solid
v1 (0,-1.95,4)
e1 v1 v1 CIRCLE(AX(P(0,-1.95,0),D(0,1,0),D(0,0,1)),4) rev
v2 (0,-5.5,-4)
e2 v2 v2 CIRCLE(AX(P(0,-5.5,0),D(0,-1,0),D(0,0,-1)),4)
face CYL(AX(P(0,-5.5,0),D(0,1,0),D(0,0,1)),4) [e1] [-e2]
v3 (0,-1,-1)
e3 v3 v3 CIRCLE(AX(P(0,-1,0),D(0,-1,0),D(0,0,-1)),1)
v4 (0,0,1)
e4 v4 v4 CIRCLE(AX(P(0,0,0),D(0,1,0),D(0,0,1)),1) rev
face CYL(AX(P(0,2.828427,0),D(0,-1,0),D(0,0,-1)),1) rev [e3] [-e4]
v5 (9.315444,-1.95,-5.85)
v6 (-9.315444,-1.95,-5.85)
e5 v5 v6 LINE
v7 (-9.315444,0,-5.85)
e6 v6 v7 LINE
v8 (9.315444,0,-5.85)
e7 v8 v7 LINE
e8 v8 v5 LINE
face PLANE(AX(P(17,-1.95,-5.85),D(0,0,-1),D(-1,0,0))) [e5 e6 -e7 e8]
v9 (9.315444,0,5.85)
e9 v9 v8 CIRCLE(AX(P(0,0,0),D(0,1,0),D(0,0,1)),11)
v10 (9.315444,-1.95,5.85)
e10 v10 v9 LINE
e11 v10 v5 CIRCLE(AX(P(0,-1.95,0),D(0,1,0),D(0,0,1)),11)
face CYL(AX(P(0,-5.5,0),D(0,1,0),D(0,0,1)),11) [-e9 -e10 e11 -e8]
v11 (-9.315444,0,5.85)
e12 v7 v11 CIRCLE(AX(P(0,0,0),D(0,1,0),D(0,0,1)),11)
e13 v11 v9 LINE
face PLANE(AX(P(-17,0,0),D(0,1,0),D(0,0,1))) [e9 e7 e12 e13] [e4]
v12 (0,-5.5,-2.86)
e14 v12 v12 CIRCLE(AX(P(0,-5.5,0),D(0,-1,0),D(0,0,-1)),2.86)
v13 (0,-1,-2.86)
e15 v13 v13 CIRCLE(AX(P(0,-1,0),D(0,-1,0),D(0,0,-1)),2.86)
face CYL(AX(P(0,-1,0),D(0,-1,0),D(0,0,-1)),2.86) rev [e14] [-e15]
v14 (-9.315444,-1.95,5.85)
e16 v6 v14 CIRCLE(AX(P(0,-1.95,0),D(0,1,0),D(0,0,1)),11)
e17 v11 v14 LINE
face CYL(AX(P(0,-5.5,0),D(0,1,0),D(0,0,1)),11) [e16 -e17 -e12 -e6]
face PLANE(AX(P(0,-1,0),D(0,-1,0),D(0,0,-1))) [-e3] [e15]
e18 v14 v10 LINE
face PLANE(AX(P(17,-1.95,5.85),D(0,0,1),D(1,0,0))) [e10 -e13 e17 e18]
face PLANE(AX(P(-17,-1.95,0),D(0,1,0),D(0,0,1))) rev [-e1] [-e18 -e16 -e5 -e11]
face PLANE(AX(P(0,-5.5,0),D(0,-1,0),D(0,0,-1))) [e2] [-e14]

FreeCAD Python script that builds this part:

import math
import FreeCAD as App
import Part
import Sketcher
from FreeCAD import Vector

doc = App.newDocument("Part")
body = doc.addObject("PartDesign::Body", "Body")

# Sketch on XZ plane
sketch1 = doc.addObject("Sketcher::SketchObject", "Sketch")
body.addObject(sketch1)
sketch1.AttachmentSupport = (doc.XZ_Plane, [""])
sketch1.MapMode = "FlatFace"
sketch1.addGeometry([
    Part.LineSegment(Vector(17, -5.85, 0), Vector(-17, -5.85, 0)),  # 0
    Part.ArcOfCircle(Part.Circle(Vector(-17, 0, 0), Vector(0, 0, 1), 5.85), math.radians(180), math.radians(270)),  # 1
    Part.ArcOfCircle(Part.Circle(Vector(-17, 0, 0), Vector(0, 0, 1), 5.85), math.radians(90), math.radians(180)),  # 2
    Part.LineSegment(Vector(-17, 5.85, 0), Vector(17, 5.85, 0)),  # 3
    Part.ArcOfCircle(Part.Circle(Vector(17, 0, 0), Vector(0, 0, 1), 5.85), math.radians(0), math.radians(90)),  # 4
    Part.ArcOfCircle(Part.Circle(Vector(17, 0, 0), Vector(0, 0, 1), 5.85), math.radians(-90), math.radians(0)),  # 5
], False)
sketch1.addConstraint([
    Sketcher.Constraint("Tangent", 0, 2, 1, 2),
    Sketcher.Constraint("Tangent", 1, 1, 2, 2),
    Sketcher.Constraint("Tangent", 2, 1, 3, 1),
    Sketcher.Constraint("Tangent", 3, 2, 4, 2),
    Sketcher.Constraint("Tangent", 4, 1, 5, 2),
    Sketcher.Constraint("Tangent", 5, 1, 0, 1),
    Sketcher.Constraint("Horizontal", 0),
    Sketcher.Constraint("Horizontal", 3),
    Sketcher.Constraint("Equal", 1, 2),
    Sketcher.Constraint("Equal", 2, 4),
    Sketcher.Constraint("Symmetric", 1, 3, 4, 3, -1, 1),
    Sketcher.Constraint("PointOnObject", 1, 1, -1),
    Sketcher.Constraint("PointOnObject", 4, 1, -1),
    Sketcher.Constraint("DistanceX", 0, 2, 0, 1, 34.0),
    Sketcher.Constraint("Radius", 1, 5.85),
])
pad1 = doc.addObject("PartDesign::Pad", "Pad")
body.addObject(pad1)
pad1.Profile = sketch1
pad1.Length = 1.95

# Sketch on XZ plane
sketch2 = doc.addObject("Sketcher::SketchObject", "Sketch001")
body.addObject(sketch2)
sketch2.AttachmentSupport = (doc.XZ_Plane, [""])
sketch2.MapMode = "FlatFace"
sketch2.AttachmentOffset = App.Placement(Vector(0, 0, 1.95), App.Rotation())
sketch2.addGeometry(Part.Circle(Vector(0, 0, 0), Vector(0, 0, 1), 4), False)
sketch2.addConstraint([
    Sketcher.Constraint("Coincident", 0, 3, -1, 1),
    Sketcher.Constraint("Diameter", 0, 8.0),
])
pad2 = doc.addObject("PartDesign::Pad", "Pad001")
body.addObject(pad2)
pad2.Profile = sketch2
pad2.Length = 3.55

# Sketch on XZ plane
sketch3 = doc.addObject("Sketcher::SketchObject", "Sketch002")
body.addObject(sketch3)
sketch3.AttachmentSupport = (doc.XZ_Plane, [""])
sketch3.MapMode = "FlatFace"
sketch3.AttachmentOffset = App.Placement(Vector(0, 0, 5.5), App.Rotation())
sketch3.addGeometry(Part.Circle(Vector(0, 0, 0), Vector(0, 0, 1), 2.86), False)
sketch3.addConstraint([
    Sketcher.Constraint("Coincident", 0, 3, -1, 1),
    Sketcher.Constraint("Diameter", 0, 5.72),
])
pocket1 = doc.addObject("PartDesign::Pocket", "Pocket")
body.addObject(pocket1)
pocket1.Profile = sketch3
pocket1.Length = 4.5

# Sketch on XZ plane
sketch4 = doc.addObject("Sketcher::SketchObject", "Sketch003")
body.addObject(sketch4)
sketch4.AttachmentSupport = (doc.XZ_Plane, [""])
sketch4.MapMode = "FlatFace"
sketch4.AttachmentOffset = App.Placement(Vector(0, 0, 1), App.Rotation())
sketch4.addGeometry(Part.Circle(Vector(0, 0, 0), Vector(0, 0, 1), 1), False)
sketch4.addConstraint([
    Sketcher.Constraint("Coincident", 0, 3, -1, 1),
    Sketcher.Constraint("Diameter", 0, 2.0),
])
pocket2 = doc.addObject("PartDesign::Pocket", "Pocket001")
body.addObject(pocket2)
pocket2.Profile = sketch4
pocket2.Length = 1

# Sketch on XZ plane
sketch5 = doc.addObject("Sketcher::SketchObject", "Sketch004")
body.addObject(sketch5)
sketch5.AttachmentSupport = (doc.XZ_Plane, [""])
sketch5.MapMode = "FlatFace"
sketch5.addGeometry([
    Part.LineSegment(Vector(-28.599, -11.599, 0), Vector(-28.599, 11.599, 0)),  # 0
    Part.LineSegment(Vector(-28.599, 11.599, 0), Vector(28.599, 11.599, 0)),  # 1
    Part.LineSegment(Vector(28.599, 11.599, 0), Vector(28.599, -11.599, 0)),  # 2
    Part.LineSegment(Vector(28.599, -11.599, 0), Vector(-28.599, -11.599, 0)),  # 3
    Part.Circle(Vector(0, 0, 0), Vector(0, 0, 1), 11),  # 4
], False)
sketch5.addConstraint([
    Sketcher.Constraint("Coincident", 0, 2, 1, 1),
    Sketcher.Constraint("Coincident", 1, 2, 2, 1),
    Sketcher.Constraint("Coincident", 2, 2, 3, 1),
    Sketcher.Constraint("Coincident", 3, 2, 0, 1),
    Sketcher.Constraint("Vertical", 0),
    Sketcher.Constraint("Horizontal", 1),
    Sketcher.Constraint("Vertical", 2),
    Sketcher.Constraint("Horizontal", 3),
    Sketcher.Constraint("Coincident", 4, 3, -1, 1),
    Sketcher.Constraint("Symmetric", 0, 2, 2, 2, -1, 1),
    Sketcher.Constraint("Diameter", 4, 22.0),
    Sketcher.Constraint("DistanceX", 1, 1, 1, 2, 57.198),
    Sketcher.Constraint("DistanceY", 0, 1, 0, 2, 23.198),
])
pocket3 = doc.addObject("PartDesign::Pocket", "Pocket002")
body.addObject(pocket3)
pocket3.Profile = sketch5
pocket3.Type = "ThroughAll"
pocket3.Midplane = True

doc.recompute()
